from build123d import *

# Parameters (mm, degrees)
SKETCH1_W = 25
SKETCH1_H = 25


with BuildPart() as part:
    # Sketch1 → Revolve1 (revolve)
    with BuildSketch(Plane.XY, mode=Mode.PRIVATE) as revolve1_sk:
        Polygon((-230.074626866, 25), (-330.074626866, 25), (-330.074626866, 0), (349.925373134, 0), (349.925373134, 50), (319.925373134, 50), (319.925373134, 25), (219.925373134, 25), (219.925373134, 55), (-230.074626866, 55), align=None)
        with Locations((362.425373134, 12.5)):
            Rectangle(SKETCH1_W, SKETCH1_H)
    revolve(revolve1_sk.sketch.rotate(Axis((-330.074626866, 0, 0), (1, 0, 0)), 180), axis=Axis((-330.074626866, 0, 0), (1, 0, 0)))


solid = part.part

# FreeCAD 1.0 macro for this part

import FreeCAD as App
import Part
import Sketcher
Q = App.Units.Quantity

doc = App.newDocument("Part")
params = doc.addObject("Spreadsheet::Sheet", "Params")
for row, (alias, value) in enumerate([
    ("sketch1_width", "100 mm"),
    ("sketch1_width2", "705 mm"),
    ("sketch1_width3", "25 mm"),
    ("sketch1_width4", "30 mm"),
    ("revolution_angle", "360 deg"),
], start=1):
    params.set(f"A{row}", alias)
    params.set(f"B{row}", "=" + value)
    params.setAlias(f"B{row}", alias)

body = doc.addObject("PartDesign::Body", "Body")

# Sketch on XY plane
sketch1 = body.newObject("Sketcher::SketchObject", "Sketch")
sketch1.AttachmentSupport = (doc.getObject("XY_Plane"), [""])
sketch1.MapMode = "FlatFace"
sketch1.addGeometry(Part.LineSegment(App.Vector(-230, 25, 0), App.Vector(-330, 25, 0)), False)
sketch1.addGeometry(Part.LineSegment(App.Vector(-330, 25, 0), App.Vector(-330, 0, 0)), False)
sketch1.addGeometry(Part.LineSegment(App.Vector(-330, 0, 0), App.Vector(375, 0, 0)), False)
sketch1.addGeometry(Part.LineSegment(App.Vector(375, 0, 0), App.Vector(375, 25, 0)), False)
sketch1.addGeometry(Part.LineSegment(App.Vector(375, 25, 0), App.Vector(350, 25, 0)), False)
sketch1.addGeometry(Part.LineSegment(App.Vector(350, 25, 0), App.Vector(350, 50, 0)), False)
sketch1.addGeometry(Part.LineSegment(App.Vector(350, 50, 0), App.Vector(320, 50, 0)), False)
sketch1.addGeometry(Part.LineSegment(App.Vector(320, 50, 0), App.Vector(320, 25, 0)), False)
sketch1.addGeometry(Part.LineSegment(App.Vector(320, 25, 0), App.Vector(220, 25, 0)), False)
sketch1.addGeometry(Part.LineSegment(App.Vector(220, 25, 0), App.Vector(220, 55, 0)), False)
sketch1.addGeometry(Part.LineSegment(App.Vector(220, 55, 0), App.Vector(-230, 55, 0)), False)
sketch1.addGeometry(Part.LineSegment(App.Vector(-230, 55, 0), App.Vector(-230, 25, 0)), False)
sketch1.addConstraint(Sketcher.Constraint("Coincident", 0, 2, 1, 1))
sketch1.addConstraint(Sketcher.Constraint("Coincident", 1, 2, 2, 1))
sketch1.addConstraint(Sketcher.Constraint("Coincident", 2, 2, 3, 1))
sketch1.addConstraint(Sketcher.Constraint("Coincident", 3, 2, 4, 1))
sketch1.addConstraint(Sketcher.Constraint("Coincident", 4, 2, 5, 1))
sketch1.addConstraint(Sketcher.Constraint("Coincident", 5, 2, 6, 1))
sketch1.addConstraint(Sketcher.Constraint("Coincident", 6, 2, 7, 1))
sketch1.addConstraint(Sketcher.Constraint("Coincident", 7, 2, 8, 1))
sketch1.addConstraint(Sketcher.Constraint("Coincident", 8, 2, 9, 1))
sketch1.addConstraint(Sketcher.Constraint("Coincident", 9, 2, 10, 1))
sketch1.addConstraint(Sketcher.Constraint("Coincident", 10, 2, 11, 1))
sketch1.addConstraint(Sketcher.Constraint("Coincident", 11, 2, 0, 1))
sketch1.addConstraint(Sketcher.Constraint("Horizontal", 0))
sketch1.addConstraint(Sketcher.Constraint("Vertical", 1))
sketch1.addConstraint(Sketcher.Constraint("Horizontal", 2))
sketch1.addConstraint(Sketcher.Constraint("Vertical", 3))
sketch1.addConstraint(Sketcher.Constraint("Horizontal", 4))
sketch1.addConstraint(Sketcher.Constraint("Vertical", 5))
sketch1.addConstraint(Sketcher.Constraint("Horizontal", 6))
sketch1.addConstraint(Sketcher.Constraint("Vertical", 7))
sketch1.addConstraint(Sketcher.Constraint("Horizontal", 8))
sketch1.addConstraint(Sketcher.Constraint("Vertical", 9))
sketch1.addConstraint(Sketcher.Constraint("Horizontal", 10))
sketch1.addConstraint(Sketcher.Constraint("Vertical", 11))
sketch1.addConstraint(Sketcher.Constraint("PointOnObject", 1, 2, -1))
sketch1.addConstraint(Sketcher.Constraint("Horizontal", 0, 2, 3, 2))
sketch1.addConstraint(Sketcher.Constraint("Horizontal", 4, 2, 7, 2))
sketch1.addConstraint(Sketcher.Constraint("Equal", 0, 8))
sketch1.addConstraint(Sketcher.Constraint("Equal", 4, 1))
sketch1.addConstraint(Sketcher.Constraint("Equal", 3, 5))
sketch1.addConstraint(Sketcher.Constraint("Equal", 6, 9))
sketch1.addConstraint(Sketcher.Constraint("DistanceX", 0, 2, 0, 1, Q("100 mm")))
sketch1.addConstraint(Sketcher.Constraint("DistanceX", 2, 1, 2, 2, Q("705 mm")))
sketch1.addConstraint(Sketcher.Constraint("DistanceX", 4, 2, 4, 1, Q("25 mm")))
sketch1.addConstraint(Sketcher.Constraint("DistanceX", 6, 2, 6, 1, Q("30 mm")))
sketch1.addConstraint(Sketcher.Constraint("DistanceX", 0, 2, -1, 1, Q("330.074627 mm")))
sketch1.setExpression("Constraints[31]", "Params.sketch1_width")
sketch1.setExpression("Constraints[32]", "Params.sketch1_width2")
sketch1.setExpression("Constraints[33]", "Params.sketch1_width3")
sketch1.setExpression("Constraints[34]", "Params.sketch1_width4")
revolution = body.newObject("PartDesign::Revolution", "Revolution")
revolution.Profile = sketch1
revolution.ReferenceAxis = (sketch1, ["H_Axis"])
revolution.setExpression("Angle", "Params.revolution_angle")

doc.recompute()
